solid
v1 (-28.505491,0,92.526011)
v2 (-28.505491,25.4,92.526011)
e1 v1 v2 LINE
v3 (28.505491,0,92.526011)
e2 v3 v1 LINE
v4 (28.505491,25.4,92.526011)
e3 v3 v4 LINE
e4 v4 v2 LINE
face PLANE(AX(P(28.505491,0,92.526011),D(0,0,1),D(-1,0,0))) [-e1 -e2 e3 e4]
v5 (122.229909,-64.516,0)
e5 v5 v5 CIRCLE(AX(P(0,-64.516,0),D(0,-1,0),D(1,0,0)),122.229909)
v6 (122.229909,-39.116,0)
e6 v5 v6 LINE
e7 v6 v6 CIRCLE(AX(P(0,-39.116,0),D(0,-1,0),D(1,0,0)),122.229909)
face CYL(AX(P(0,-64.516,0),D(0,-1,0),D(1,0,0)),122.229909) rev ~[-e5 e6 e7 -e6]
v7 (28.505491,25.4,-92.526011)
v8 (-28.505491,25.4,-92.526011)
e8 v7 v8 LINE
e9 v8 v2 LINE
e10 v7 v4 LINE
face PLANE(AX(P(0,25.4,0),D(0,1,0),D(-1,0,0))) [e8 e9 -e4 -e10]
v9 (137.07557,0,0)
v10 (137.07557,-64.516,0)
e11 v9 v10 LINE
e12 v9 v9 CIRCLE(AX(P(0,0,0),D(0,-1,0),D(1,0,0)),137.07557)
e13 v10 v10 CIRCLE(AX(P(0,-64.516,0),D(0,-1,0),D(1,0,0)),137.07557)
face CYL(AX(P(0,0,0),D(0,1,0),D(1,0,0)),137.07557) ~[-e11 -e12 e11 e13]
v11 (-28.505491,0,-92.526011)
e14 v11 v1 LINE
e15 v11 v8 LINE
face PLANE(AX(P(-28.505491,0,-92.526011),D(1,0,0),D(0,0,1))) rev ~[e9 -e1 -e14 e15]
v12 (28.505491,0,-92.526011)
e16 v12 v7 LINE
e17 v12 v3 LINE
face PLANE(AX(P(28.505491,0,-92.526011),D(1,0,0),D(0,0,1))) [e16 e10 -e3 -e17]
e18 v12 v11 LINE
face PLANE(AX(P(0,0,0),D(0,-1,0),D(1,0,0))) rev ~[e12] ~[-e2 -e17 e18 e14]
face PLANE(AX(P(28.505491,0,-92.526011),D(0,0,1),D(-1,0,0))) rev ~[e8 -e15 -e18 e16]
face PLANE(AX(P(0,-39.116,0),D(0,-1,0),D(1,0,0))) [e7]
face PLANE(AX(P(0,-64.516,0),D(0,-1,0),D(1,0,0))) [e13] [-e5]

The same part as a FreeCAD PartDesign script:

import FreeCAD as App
import Part
import Sketcher
from FreeCAD import Vector
Q = App.Units.Quantity


def add_polygon(sketch, points):
    """Adds a closed chain of lines whose ends are joined by coincident constraints."""
    first, n = sketch.GeometryCount, len(points)
    for a, b in zip(points, points[1:] + points[:1]):
        sketch.addGeometry(Part.LineSegment(App.Vector(*a, 0), App.Vector(*b, 0)), False)
    for i in range(n):
        sketch.addConstraint(Sketcher.Constraint("Coincident", first + i, 2, first + (i + 1) % n, 1))

doc = App.newDocument("Part")
body = doc.addObject("PartDesign::Body", "Body")

sketch1 = doc.addObject("Sketcher::SketchObject", "Sketch")
body.addObject(sketch1)
sketch1.AttachmentSupport = (doc.XZ_Plane, [""])
sketch1.MapMode = "FlatFace"
sketch1.addGeometry(Part.Circle(Vector(0, 0, 0), Vector(0, 0, 1), 137), False)
sketch1.addConstraint([
    Sketcher.Constraint("Coincident", 0, 3, -1, 1),
    Sketcher.Constraint("Diameter", 0, 274.15114),
])
pad1 = doc.addObject("PartDesign::Pad", "Pad")
body.addObject(pad1)
pad1.Profile = sketch1
pad1.Length = Q("2.54 in")

sketch2 = doc.addObject("Sketcher::SketchObject", "Sketch001")
body.addObject(sketch2)
sketch2.AttachmentSupport = (doc.XZ_Plane, [""])
sketch2.MapMode = "FlatFace"
sketch2.AttachmentOffset = App.Placement(Vector(0, 0, 2.54 * 25.4), App.Rotation())
sketch2.addGeometry(Part.Circle(Vector(0, 0, 0), Vector(0, 0, 1), 122), False)
sketch2.addConstraint([
    Sketcher.Constraint("Coincident", 0, 3, -1, 1),
    Sketcher.Constraint("Diameter", 0, 244.459818),
])
pocket1 = doc.addObject("PartDesign::Pocket", "Pocket")
body.addObject(pocket1)
pocket1.Profile = sketch2
pocket1.Length = Q("1 in")

sketch3 = doc.addObject("Sketcher::SketchObject", "Sketch002")
body.addObject(sketch3)
sketch3.AttachmentSupport = (doc.XZ_Plane, [""])
sketch3.MapMode = "FlatFace"
add_polygon(sketch3, [(29, 93), (29, -93), (-29, -93), (-29, 93)])
sketch3.addConstraint([
    Sketcher.Constraint("Vertical", 0),
    Sketcher.Constraint("Horizontal", 1),
    Sketcher.Constraint("Vertical", 2),
    Sketcher.Constraint("Horizontal", 3),
    Sketcher.Constraint("Symmetric", 0, 2, 2, 2, -1, 1),
    Sketcher.Constraint("DistanceX", 1, 2, 1, 1, 57.010982),
    Sketcher.Constraint("DistanceY", 0, 2, 0, 1, 185.052022),
])
pad2 = doc.addObject("PartDesign::Pad", "Pad001")
body.addObject(pad2)
pad2.Profile = sketch3
pad2.Length = Q("1 in")
pad2.Reversed = True

doc.recompute()
